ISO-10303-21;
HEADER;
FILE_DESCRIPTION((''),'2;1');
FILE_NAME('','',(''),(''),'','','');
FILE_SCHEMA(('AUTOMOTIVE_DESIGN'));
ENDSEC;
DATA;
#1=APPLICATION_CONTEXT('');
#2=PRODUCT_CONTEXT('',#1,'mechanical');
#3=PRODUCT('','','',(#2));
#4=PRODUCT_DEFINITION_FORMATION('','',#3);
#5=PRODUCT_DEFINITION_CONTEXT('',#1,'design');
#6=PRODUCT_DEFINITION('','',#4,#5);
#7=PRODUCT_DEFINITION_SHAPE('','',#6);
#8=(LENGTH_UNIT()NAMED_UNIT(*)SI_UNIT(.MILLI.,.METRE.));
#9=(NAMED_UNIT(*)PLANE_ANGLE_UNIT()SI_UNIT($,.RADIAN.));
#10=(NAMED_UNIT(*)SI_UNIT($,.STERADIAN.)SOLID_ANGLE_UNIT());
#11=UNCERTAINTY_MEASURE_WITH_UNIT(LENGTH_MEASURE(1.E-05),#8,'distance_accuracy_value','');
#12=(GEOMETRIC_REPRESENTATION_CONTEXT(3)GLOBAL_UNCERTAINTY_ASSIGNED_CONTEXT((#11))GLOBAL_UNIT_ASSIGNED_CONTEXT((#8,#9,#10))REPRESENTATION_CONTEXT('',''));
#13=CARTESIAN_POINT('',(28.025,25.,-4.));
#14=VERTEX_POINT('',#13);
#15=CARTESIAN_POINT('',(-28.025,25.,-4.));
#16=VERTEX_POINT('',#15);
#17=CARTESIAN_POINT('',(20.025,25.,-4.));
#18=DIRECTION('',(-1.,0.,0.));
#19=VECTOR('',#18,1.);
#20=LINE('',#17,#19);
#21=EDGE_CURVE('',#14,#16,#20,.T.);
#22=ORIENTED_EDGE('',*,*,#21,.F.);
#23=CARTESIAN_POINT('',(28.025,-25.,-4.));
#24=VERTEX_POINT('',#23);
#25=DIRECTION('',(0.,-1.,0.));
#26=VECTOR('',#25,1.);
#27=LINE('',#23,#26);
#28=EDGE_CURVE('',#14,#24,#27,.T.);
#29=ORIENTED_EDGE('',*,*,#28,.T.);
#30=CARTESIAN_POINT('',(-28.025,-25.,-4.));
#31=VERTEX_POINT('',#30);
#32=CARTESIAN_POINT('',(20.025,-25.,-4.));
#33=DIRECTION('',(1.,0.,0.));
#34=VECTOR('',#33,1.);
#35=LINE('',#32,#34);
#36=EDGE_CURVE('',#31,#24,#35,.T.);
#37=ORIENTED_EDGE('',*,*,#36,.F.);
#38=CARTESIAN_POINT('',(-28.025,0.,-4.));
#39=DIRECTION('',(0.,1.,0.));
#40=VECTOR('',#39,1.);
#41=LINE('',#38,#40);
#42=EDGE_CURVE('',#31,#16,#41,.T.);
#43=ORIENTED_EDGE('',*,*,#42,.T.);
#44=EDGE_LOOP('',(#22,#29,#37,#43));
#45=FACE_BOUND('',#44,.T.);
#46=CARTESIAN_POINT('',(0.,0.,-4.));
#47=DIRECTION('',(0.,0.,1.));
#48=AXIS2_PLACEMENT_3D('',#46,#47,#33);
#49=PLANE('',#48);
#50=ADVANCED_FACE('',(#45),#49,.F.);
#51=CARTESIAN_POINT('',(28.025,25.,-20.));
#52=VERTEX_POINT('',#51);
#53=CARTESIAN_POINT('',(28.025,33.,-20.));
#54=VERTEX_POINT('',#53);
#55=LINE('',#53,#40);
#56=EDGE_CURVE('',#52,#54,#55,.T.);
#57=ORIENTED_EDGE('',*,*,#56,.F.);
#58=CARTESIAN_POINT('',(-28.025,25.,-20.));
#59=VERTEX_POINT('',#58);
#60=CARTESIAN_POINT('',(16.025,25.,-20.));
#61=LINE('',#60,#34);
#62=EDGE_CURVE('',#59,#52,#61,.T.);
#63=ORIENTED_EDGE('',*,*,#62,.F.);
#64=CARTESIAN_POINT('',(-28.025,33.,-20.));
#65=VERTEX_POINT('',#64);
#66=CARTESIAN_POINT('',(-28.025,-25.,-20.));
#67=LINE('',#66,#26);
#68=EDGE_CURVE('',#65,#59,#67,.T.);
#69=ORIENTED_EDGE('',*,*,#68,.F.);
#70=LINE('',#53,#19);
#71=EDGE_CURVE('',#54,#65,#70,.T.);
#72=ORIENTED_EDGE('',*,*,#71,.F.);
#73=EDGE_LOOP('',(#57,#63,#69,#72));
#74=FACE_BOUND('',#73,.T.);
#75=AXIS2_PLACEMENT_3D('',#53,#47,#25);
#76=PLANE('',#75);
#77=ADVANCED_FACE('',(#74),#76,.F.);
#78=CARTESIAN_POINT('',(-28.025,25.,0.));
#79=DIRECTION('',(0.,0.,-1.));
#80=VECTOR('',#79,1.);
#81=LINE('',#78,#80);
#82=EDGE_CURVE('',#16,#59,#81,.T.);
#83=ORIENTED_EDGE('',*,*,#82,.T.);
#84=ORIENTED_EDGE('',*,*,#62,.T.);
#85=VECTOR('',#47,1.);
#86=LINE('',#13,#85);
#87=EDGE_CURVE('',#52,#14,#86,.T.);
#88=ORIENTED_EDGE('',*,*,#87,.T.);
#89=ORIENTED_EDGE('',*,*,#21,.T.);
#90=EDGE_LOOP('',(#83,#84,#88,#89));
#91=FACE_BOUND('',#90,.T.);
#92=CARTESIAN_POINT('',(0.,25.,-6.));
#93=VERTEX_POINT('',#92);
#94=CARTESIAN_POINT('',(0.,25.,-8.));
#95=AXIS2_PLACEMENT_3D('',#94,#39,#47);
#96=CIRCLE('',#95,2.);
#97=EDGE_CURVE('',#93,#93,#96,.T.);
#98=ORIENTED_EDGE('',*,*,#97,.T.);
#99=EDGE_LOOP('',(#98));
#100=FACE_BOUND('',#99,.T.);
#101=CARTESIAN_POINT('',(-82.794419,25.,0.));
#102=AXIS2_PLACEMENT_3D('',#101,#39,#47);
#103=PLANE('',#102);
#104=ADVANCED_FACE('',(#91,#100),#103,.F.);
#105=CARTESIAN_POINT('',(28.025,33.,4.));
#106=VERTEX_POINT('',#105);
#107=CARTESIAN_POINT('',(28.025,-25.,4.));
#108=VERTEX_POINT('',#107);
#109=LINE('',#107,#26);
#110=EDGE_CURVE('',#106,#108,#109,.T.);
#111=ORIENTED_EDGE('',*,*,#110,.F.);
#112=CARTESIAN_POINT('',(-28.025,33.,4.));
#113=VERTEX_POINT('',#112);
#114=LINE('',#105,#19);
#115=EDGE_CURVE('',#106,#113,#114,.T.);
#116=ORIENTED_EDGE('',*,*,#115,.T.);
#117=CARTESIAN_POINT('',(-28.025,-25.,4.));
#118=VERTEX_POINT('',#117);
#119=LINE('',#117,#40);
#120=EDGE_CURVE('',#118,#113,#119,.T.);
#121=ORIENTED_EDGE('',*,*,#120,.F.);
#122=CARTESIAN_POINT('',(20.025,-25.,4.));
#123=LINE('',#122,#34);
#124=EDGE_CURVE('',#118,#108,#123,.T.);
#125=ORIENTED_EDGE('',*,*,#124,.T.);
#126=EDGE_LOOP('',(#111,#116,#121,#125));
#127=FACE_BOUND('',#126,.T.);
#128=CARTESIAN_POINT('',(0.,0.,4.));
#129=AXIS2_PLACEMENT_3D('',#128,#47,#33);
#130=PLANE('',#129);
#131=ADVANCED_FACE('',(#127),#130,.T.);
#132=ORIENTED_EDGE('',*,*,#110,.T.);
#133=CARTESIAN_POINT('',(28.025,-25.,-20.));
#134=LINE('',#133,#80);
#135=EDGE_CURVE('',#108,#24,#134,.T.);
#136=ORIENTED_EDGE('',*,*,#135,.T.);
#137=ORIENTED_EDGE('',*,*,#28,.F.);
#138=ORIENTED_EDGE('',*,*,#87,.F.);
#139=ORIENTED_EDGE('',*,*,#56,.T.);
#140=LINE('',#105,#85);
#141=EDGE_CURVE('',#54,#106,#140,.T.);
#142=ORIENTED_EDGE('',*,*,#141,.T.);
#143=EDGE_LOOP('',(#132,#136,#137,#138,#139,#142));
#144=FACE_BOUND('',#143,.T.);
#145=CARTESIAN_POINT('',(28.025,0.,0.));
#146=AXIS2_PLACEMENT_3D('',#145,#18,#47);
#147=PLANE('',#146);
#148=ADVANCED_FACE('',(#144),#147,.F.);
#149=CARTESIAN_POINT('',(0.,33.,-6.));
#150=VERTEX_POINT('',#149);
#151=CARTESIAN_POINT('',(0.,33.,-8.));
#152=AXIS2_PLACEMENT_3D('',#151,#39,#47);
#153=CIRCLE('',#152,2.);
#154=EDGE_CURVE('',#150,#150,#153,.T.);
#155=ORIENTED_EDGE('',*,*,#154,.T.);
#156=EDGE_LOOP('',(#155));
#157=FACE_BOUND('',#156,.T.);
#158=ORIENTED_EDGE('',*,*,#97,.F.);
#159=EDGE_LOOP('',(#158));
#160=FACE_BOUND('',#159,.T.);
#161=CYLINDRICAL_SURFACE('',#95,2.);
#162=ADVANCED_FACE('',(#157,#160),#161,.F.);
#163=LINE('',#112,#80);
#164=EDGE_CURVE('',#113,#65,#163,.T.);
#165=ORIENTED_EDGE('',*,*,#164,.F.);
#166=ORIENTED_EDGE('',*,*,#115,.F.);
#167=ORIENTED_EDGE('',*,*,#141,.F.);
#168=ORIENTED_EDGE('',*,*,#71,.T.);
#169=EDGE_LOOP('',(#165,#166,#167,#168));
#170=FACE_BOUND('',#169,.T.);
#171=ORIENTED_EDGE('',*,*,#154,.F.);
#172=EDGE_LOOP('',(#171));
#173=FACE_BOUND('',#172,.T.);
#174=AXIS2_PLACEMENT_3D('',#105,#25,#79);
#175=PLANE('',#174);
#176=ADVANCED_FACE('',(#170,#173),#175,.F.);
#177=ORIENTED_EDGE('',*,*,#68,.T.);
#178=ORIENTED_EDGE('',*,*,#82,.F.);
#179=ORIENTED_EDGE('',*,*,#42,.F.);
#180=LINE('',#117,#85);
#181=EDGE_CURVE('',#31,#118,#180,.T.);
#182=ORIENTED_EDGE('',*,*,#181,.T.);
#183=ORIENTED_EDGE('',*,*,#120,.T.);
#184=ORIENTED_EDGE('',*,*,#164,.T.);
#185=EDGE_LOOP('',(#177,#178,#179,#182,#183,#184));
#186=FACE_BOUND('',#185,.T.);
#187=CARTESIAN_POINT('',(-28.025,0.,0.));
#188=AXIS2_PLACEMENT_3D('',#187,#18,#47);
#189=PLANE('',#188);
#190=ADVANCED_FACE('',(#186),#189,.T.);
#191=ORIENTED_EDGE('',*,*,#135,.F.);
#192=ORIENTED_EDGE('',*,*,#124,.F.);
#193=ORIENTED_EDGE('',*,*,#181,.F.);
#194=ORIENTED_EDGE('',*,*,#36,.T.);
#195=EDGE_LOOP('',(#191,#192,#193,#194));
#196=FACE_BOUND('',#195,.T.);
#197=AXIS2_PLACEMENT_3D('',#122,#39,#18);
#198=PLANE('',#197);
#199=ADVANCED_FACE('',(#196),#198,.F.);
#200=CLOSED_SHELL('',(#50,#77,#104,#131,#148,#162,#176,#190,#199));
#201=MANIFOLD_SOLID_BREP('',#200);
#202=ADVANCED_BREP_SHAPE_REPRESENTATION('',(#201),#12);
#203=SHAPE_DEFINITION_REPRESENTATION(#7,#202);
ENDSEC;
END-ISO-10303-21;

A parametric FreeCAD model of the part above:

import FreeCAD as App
import Part
import Sketcher

V = App.Vector
Q = App.Units.Quantity

doc = App.newDocument("Part")
body = doc.addObject("PartDesign::Body", "Body")

# Sketch on XY plane
sketch1 = body.newObject("Sketcher::SketchObject", "Sketch")
sketch1.AttachmentSupport = (doc.getObject("XY_Plane"), [""])
sketch1.MapMode = "FlatFace"
sketch1.addGeometry([
    Part.LineSegment(V(-20.025, 25, 0), V(-20.025, -25, 0)),
    Part.LineSegment(V(-20.025, -25, 0), V(20.025, -25, 0)),
    Part.LineSegment(V(20.025, -25, 0), V(20.025, 25, 0)),
    Part.LineSegment(V(20.025, 25, 0), V(-20.025, 25, 0)),
], False)
sketch1.addConstraint([
    Sketcher.Constraint("Coincident", 0, 2, 1, 1),
    Sketcher.Constraint("Coincident", 1, 2, 2, 1),
    Sketcher.Constraint("Coincident", 2, 2, 3, 1),
    Sketcher.Constraint("Coincident", 3, 2, 0, 1),
    Sketcher.Constraint("Vertical", 0),
    Sketcher.Constraint("Horizontal", 1),
    Sketcher.Constraint("Vertical", 2),
    Sketcher.Constraint("Horizontal", 3),
    Sketcher.Constraint("Symmetric", 0, 2, 2, 2, -1, 1),
    Sketcher.Constraint("DistanceY", 0, 2, 0, 1, Q("50 mm")),
    Sketcher.Constraint("DistanceX", 1, 1, 1, 2, Q("40.05 mm")),
])
pad1 = body.newObject("PartDesign::Pad", "Pad")
pad1.Profile = sketch1
pad1.Length = 8
pad1.Midplane = True

# Sketch on YZ plane
sketch2 = body.newObject("Sketcher::SketchObject", "Sketch001")
sketch2.AttachmentSupport = (doc.getObject("YZ_Plane"), [""])
sketch2.MapMode = "FlatFace"
sketch2.AttachmentOffset = App.Placement(V(0, 0, 20.025), App.Rotation())
sketch2.addGeometry([
    Part.LineSegment(V(33, 4, 0), V(-25, 4, 0)),
    Part.LineSegment(V(-25, 4, 0), V(-25, -20, 0)),
    Part.LineSegment(V(-25, -20, 0), V(33, -20, 0)),
    Part.LineSegment(V(33, -20, 0), V(33, 4, 0)),
], False)
sketch2.addConstraint([
    Sketcher.Constraint("Coincident", 0, 2, 1, 1),
    Sketcher.Constraint("Coincident", 1, 2, 2, 1),
    Sketcher.Constraint("Coincident", 2, 2, 3, 1),
    Sketcher.Constraint("Coincident", 3, 2, 0, 1),
    Sketcher.Constraint("Horizontal", 0),
    Sketcher.Constraint("Vertical", 1),
    Sketcher.Constraint("Horizontal", 2),
    Sketcher.Constraint("Vertical", 3),
    Sketcher.Constraint("DistanceX", 0, 2, 0, 1, Q("58 mm")),
    Sketcher.Constraint("DistanceY", 1, 2, 1, 1, Q("24 mm")),
    Sketcher.Constraint("DistanceX", 0, 2, -1, 1, Q("25 mm")),
    Sketcher.Constraint("DistanceY", -1, 1, 0, 2, Q("4 mm")),
])
pad2 = body.newObject("PartDesign::Pad", "Pad001")
pad2.Profile = sketch2
pad2.Length = 8

# Sketch on YZ plane
sketch3 = body.newObject("Sketcher::SketchObject", "Sketch002")
sketch3.AttachmentSupport = (doc.getObject("YZ_Plane"), [""])
sketch3.MapMode = "FlatFace"
sketch3.AttachmentOffset = App.Placement(V(0, 0, -20.025), App.Rotation())
sketch3.addGeometry([
    Part.LineSegment(V(33, -20, 0), V(-25, -20, 0)),
    Part.LineSegment(V(-25, -20, 0), V(-25, 4, 0)),
    Part.LineSegment(V(-25, 4, 0), V(33, 4, 0)),
    Part.LineSegment(V(33, 4, 0), V(33, -20, 0)),
], False)
sketch3.addConstraint([
    Sketcher.Constraint("Coincident", 0, 2, 1, 1),
    Sketcher.Constraint("Coincident", 1, 2, 2, 1),
    Sketcher.Constraint("Coincident", 2, 2, 3, 1),
    Sketcher.Constraint("Coincident", 3, 2, 0, 1),
    Sketcher.Constraint("Horizontal", 0),
    Sketcher.Constraint("Vertical", 1),
    Sketcher.Constraint("Horizontal", 2),
    Sketcher.Constraint("Vertical", 3),
    Sketcher.Constraint("DistanceX", 0, 2, 0, 1, Q("58 mm")),
    Sketcher.Constraint("DistanceY", 1, 1, 1, 2, Q("24 mm")),
    Sketcher.Constraint("DistanceX", 0, 2, -1, 1, Q("25 mm")),
    Sketcher.Constraint("DistanceY", 0, 2, -1, 1, Q("20 mm")),
])
pad3 = body.newObject("PartDesign::Pad", "Pad002")
pad3.Profile = sketch3
pad3.Length = 8
pad3.Reversed = True

# Sketch on YZ plane
sketch4 = body.newObject("Sketcher::SketchObject", "Sketch003")
sketch4.AttachmentSupport = (doc.getObject("YZ_Plane"), [""])
sketch4.MapMode = "FlatFace"
sketch4.AttachmentOffset = App.Placement(V(0, 0, 20.025), App.Rotation())
sketch4.addGeometry([
    Part.LineSegment(V(33, -20, 0), V(-25, -20, 0)),  # 0
    Part.LineSegment(V(-25, -20, 0), V(-25, -12.05, 0)),  # 1
    Part.LineSegment(V(-25, -12.05, 0), V(25, -12.05, 0)),  # 2
    Part.LineSegment(V(25, -12.05, 0), V(25, 4, 0)),  # 3
    Part.LineSegment(V(25, 4, 0), V(33, 4, 0)),  # 4
    Part.LineSegment(V(33, 4, 0), V(33, -20, 0)),  # 5
], False)
sketch4.addConstraint([
    Sketcher.Constraint("Coincident", 0, 2, 1, 1),
    Sketcher.Constraint("Coincident", 1, 2, 2, 1),
    Sketcher.Constraint("Coincident", 2, 2, 3, 1),
    Sketcher.Constraint("Coincident", 3, 2, 4, 1),
    Sketcher.Constraint("Coincident", 4, 2, 5, 1),
    Sketcher.Constraint("Coincident", 5, 2, 0, 1),
    Sketcher.Constraint("Horizontal", 0),
    Sketcher.Constraint("Vertical", 1),
    Sketcher.Constraint("Horizontal", 2),
    Sketcher.Constraint("Vertical", 3),
    Sketcher.Constraint("Horizontal", 4),
    Sketcher.Constraint("Vertical", 5),
    Sketcher.Constraint("DistanceX", 0, 2, 0, 1, Q("58 mm")),
    Sketcher.Constraint("DistanceX", 2, 1, 2, 2, Q("50 mm")),
    Sketcher.Constraint("DistanceY", 5, 2, 5, 1, Q("24 mm")),
    Sketcher.Constraint("DistanceX", 0, 2, -1, 1, Q("25 mm")),
    Sketcher.Constraint("DistanceY", 0, 2, -1, 1, Q("20 mm")),
    Sketcher.Constraint("DistanceY", 1, 1, 1, 2, Q("7.95 mm")),
])
pad4 = body.newObject("PartDesign::Pad", "Pad003")
pad4.Profile = sketch4
pad4.Length = 40.05
pad4.Reversed = True

# Sketch on XY plane
sketch5 = body.newObject("Sketcher::SketchObject", "Sketch004")
sketch5.AttachmentSupport = (doc.getObject("XY_Plane"), [""])
sketch5.MapMode = "FlatFace"
sketch5.AttachmentOffset = App.Placement(V(0, 0, -20), App.Rotation())
sketch5.addGeometry([
    Part.LineSegment(V(16.025, 25, 0), V(16.025, -25, 0)),
    Part.LineSegment(V(16.025, -25, 0), V(-16.025, -25, 0)),
    Part.LineSegment(V(-16.025, -25, 0), V(-16.025, 25, 0)),
    Part.LineSegment(V(-16.025, 25, 0), V(16.025, 25, 0)),
], False)
sketch5.addConstraint([
    Sketcher.Constraint("Coincident", 0, 2, 1, 1),
    Sketcher.Constraint("Coincident", 1, 2, 2, 1),
    Sketcher.Constraint("Coincident", 2, 2, 3, 1),
    Sketcher.Constraint("Coincident", 3, 2, 0, 1),
    Sketcher.Constraint("Vertical", 0),
    Sketcher.Constraint("Horizontal", 1),
    Sketcher.Constraint("Vertical", 2),
    Sketcher.Constraint("Horizontal", 3),
    Sketcher.Constraint("Symmetric", 0, 2, 2, 2, -1, 1),
    Sketcher.Constraint("DistanceY", 0, 2, 0, 1, Q("50 mm")),
    Sketcher.Constraint("DistanceX", 1, 2, 1, 1, Q("32.05 mm")),
])
pocket1 = body.newObject("PartDesign::Pocket", "Pocket")
pocket1.Profile = sketch5
pocket1.Length = 8
pocket1.Reversed = True

# Sketch on XZ plane
sketch6 = body.newObject("Sketcher::SketchObject", "Sketch005")
sketch6.AttachmentSupport = (doc.getObject("XZ_Plane"), [""])
sketch6.MapMode = "FlatFace"
sketch6.AttachmentOffset = App.Placement(V(0, 0, -33), App.Rotation())
sketch6.addGeometry(Part.Circle(V(0, -8, 0), V(0, 0, 1), 2), False)
sketch6.addConstraint([
    Sketcher.Constraint("PointOnObject", 0, 3, -2),
    Sketcher.Constraint("Diameter", 0, Q("4 mm")),
    Sketcher.Constraint("DistanceY", 0, 3, -1, 1, Q("8 mm")),
])
pocket2 = body.newObject("PartDesign::Pocket", "Pocket001")
pocket2.Profile = sketch6
pocket2.Length = 8
pocket2.Reversed = True

# Sketch on YZ plane
sketch7 = body.newObject("Sketcher::SketchObject", "Sketch006")
sketch7.AttachmentSupport = (doc.getObject("YZ_Plane"), [""])
sketch7.MapMode = "FlatFace"
sketch7.AttachmentOffset = App.Placement(V(0, 0, 20.025), App.Rotation())
sketch7.addGeometry(Part.Circle(V(0, -8.025, 0), V(0, 0, 1), 2), False)
sketch7.addConstraint([
    Sketcher.Constraint("PointOnObject", 0, 3, -2),
    Sketcher.Constraint("Diameter", 0, Q("4 mm")),
    Sketcher.Constraint("DistanceY", 0, 3, -1, 1, Q("8.025 mm")),
])
pocket3 = body.newObject("PartDesign::Pocket", "Pocket002")
pocket3.Profile = sketch7
pocket3.Length = 100
pocket3.Midplane = True

# Sketch on YZ plane
sketch8 = body.newObject("Sketcher::SketchObject", "Sketch007")
sketch8.AttachmentSupport = (doc.getObject("YZ_Plane"), [""])
sketch8.MapMode = "FlatFace"
sketch8.AttachmentOffset = App.Placement(V(0, 0, 28.025), App.Rotation())
sketch8.addGeometry([
    Part.LineSegment(V(25, -4, 0), V(-25, -4, 0)),
    Part.LineSegment(V(-25, -4, 0), V(-25, -20, 0)),
    Part.LineSegment(V(-25, -20, 0), V(25, -20, 0)),
    Part.LineSegment(V(25, -20, 0), V(25, -4, 0)),
], False)
sketch8.addConstraint([
    Sketcher.Constraint("Coincident", 0, 2, 1, 1),
    Sketcher.Constraint("Coincident", 1, 2, 2, 1),
    Sketcher.Constraint("Coincident", 2, 2, 3, 1),
    Sketcher.Constraint("Coincident", 3, 2, 0, 1),
    Sketcher.Constraint("Horizontal", 0),
    Sketcher.Constraint("Vertical", 1),
    Sketcher.Constraint("Horizontal", 2),
    Sketcher.Constraint("Vertical", 3),
    Sketcher.Constraint("DistanceX", 0, 2, 0, 1, Q("50 mm")),
    Sketcher.Constraint("DistanceY", 1, 2, 1, 1, Q("16 mm")),
    Sketcher.Constraint("DistanceX", 0, 2, -1, 1, Q("25 mm")),
    Sketcher.Constraint("DistanceY", 0, 2, -1, 1, Q("4 mm")),
])
pocket4 = body.newObject("PartDesign::Pocket", "Pocket003")
pocket4.Profile = sketch8
pocket4.Length = 80

doc.recompute()
